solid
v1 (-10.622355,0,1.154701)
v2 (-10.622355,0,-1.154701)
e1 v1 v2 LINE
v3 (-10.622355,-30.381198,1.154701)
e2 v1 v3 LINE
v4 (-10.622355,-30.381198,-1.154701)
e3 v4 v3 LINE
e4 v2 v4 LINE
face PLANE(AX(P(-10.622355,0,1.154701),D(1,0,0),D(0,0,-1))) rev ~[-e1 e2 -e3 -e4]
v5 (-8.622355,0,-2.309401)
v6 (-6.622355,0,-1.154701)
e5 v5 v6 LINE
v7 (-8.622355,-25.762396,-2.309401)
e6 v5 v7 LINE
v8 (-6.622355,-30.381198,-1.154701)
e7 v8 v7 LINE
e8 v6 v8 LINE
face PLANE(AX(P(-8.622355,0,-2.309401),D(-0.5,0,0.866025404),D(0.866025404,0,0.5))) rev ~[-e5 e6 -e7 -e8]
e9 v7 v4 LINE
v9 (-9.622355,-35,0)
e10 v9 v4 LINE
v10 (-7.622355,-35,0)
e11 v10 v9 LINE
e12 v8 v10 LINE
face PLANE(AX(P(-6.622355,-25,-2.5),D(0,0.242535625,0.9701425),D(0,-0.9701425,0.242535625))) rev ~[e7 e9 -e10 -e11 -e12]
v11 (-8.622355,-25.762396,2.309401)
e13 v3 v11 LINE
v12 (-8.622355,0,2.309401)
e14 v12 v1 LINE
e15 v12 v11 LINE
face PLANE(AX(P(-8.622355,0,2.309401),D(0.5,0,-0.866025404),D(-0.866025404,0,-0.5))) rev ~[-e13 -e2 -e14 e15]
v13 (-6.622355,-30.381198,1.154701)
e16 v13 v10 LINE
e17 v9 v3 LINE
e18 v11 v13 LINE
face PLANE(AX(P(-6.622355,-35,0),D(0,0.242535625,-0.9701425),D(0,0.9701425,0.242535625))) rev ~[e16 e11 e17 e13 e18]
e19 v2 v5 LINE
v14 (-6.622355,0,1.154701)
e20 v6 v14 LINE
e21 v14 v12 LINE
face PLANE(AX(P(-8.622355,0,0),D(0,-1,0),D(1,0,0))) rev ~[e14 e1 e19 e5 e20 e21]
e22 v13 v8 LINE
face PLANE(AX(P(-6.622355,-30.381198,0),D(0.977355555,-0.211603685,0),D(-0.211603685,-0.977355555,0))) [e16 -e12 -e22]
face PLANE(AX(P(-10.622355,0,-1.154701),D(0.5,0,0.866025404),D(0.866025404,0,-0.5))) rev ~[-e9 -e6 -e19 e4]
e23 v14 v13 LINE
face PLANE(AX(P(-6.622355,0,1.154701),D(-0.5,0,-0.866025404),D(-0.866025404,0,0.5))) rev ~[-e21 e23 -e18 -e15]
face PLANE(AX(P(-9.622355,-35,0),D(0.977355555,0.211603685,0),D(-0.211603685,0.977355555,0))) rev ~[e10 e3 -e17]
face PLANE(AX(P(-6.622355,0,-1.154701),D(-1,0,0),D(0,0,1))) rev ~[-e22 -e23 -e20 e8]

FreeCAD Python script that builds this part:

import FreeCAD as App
import Part
import Sketcher
Q = App.Units.Quantity


def add_polygon(sketch, points):
    """Adds a closed chain of lines whose ends are joined by coincident constraints."""
    first, n = sketch.GeometryCount, len(points)
    for a, b in zip(points, points[1:] + points[:1]):
        sketch.addGeometry(Part.LineSegment(App.Vector(*a, 0), App.Vector(*b, 0)), False)
    for i in range(n):
        sketch.addConstraint(Sketcher.Constraint("Coincident", first + i, 2, first + (i + 1) % n, 1))

doc = App.newDocument("Part")
body = doc.addObject("PartDesign::Body", "Body")

# Sketch on XZ plane
sketch1 = body.newObject("Sketcher::SketchObject", "Sketch")
sketch1.AttachmentSupport = (doc.getObject("XZ_Plane"), [""])
sketch1.MapMode = "FlatFace"
add_polygon(sketch1, [(-6.622355, -1.154701), (-6.622355, 1.154701), (-8.622355, 2.309401), (-10.622355, 1.154701), (-10.622355, -1.154701), (-8.622355, -2.309401)])  # lines 0-5
sketch1.addConstraint(Sketcher.Constraint("Vertical", 0))
sketch1.addConstraint(Sketcher.Constraint("Vertical", 3))
sketch1.addConstraint(Sketcher.Constraint("Symmetric", 1, 2, 4, 2, -1))
sketch1.addConstraint(Sketcher.Constraint("Parallel", 1, 4))
sketch1.addConstraint(Sketcher.Constraint("Parallel", 2, 5))
sketch1.addConstraint(Sketcher.Constraint("Horizontal", 0, 2, 2, 2))
sketch1.addConstraint(Sketcher.Constraint("Horizontal", 3, 2, 5, 2))
sketch1.addConstraint(Sketcher.Constraint("Angle", 1, Q("150 deg")))
sketch1.addConstraint(Sketcher.Constraint("DistanceX", 1, 2, 0, 2, Q("2 mm")))
sketch1.addConstraint(Sketcher.Constraint("DistanceY", 0, 1, 0, 2, Q("2.309401 mm")))
sketch1.addConstraint(Sketcher.Constraint("DistanceX", 0, 2, -1, 1, Q("6.622355 mm")))
pad1 = body.newObject("PartDesign::Pad", "Pad")
pad1.Profile = sketch1
pad1.Length = 35

# Sketch on YZ plane
sketch2 = body.newObject("Sketcher::SketchObject", "Sketch001")
sketch2.AttachmentSupport = (doc.getObject("YZ_Plane"), [""])
sketch2.MapMode = "FlatFace"
sketch2.AttachmentOffset = App.Placement(App.Vector(0, 0, -6.622355), App.Rotation())
add_polygon(sketch2, [(-35, 2.5), (-35, 0), (-25, 2.5)])  # lines 0-2
add_polygon(sketch2, [(-25, -2.5), (-35, 0), (-35, -2.5)])  # lines 3-5
sketch2.addConstraint(Sketcher.Constraint("Vertical", 0))
sketch2.addConstraint(Sketcher.Constraint("Horizontal", 2))
sketch2.addConstraint(Sketcher.Constraint("Vertical", 4))
sketch2.addConstraint(Sketcher.Constraint("Horizontal", 5))
sketch2.addConstraint(Sketcher.Constraint("Coincident", 3, 2, 0, 2))
sketch2.addConstraint(Sketcher.Constraint("Symmetric", 1, 2, 5, 2, -1))
sketch2.addConstraint(Sketcher.Constraint("PointOnObject", 0, 2, -1))
sketch2.addConstraint(Sketcher.Constraint("DistanceX", 2, 2, 2, 1, Q("10 mm")))
sketch2.addConstraint(Sketcher.Constraint("DistanceY", 0, 2, 0, 1, Q("2.5 mm")))
sketch2.addConstraint(Sketcher.Constraint("DistanceX", 0, 2, -1, 1, Q("35 mm")))
pocket1 = body.newObject("PartDesign::Pocket", "Pocket")
pocket1.Profile = sketch2
pocket1.Type = "ThroughAll"

# Sketch on XY plane
sketch3 = body.newObject("Sketcher::SketchObject", "Sketch002")
sketch3.AttachmentSupport = (doc.getObject("XY_Plane"), [""])
sketch3.MapMode = "FlatFace"
add_polygon(sketch3, [(-6.622355, -35), (-6.622355, -30.381198), (-7.622355, -35)])  # lines 0-2
add_polygon(sketch3, [(-10.622355, -35), (-9.622355, -35), (-10.622355, -30.381198)])  # lines 3-5
sketch3.addConstraint(Sketcher.Constraint("Vertical", 0))
sketch3.addConstraint(Sketcher.Constraint("Horizontal", 2))
sketch3.addConstraint(Sketcher.Constraint("Horizontal", 3))
sketch3.addConstraint(Sketcher.Constraint("Vertical", 5))
sketch3.addConstraint(Sketcher.Constraint("Horizontal", 2, 2, 3, 2))
sketch3.addConstraint(Sketcher.Constraint("Horizontal", 0, 2, 4, 2))
sketch3.addConstraint(Sketcher.Constraint("Equal", 2, 3))
sketch3.addConstraint(Sketcher.Constraint("DistanceX", 2, 1, 2, 2, Q("1 mm")))
sketch3.addConstraint(Sketcher.Constraint("DistanceY", 1, 2, -1, 1, Q("35 mm")))
sketch3.addConstraint(Sketcher.Constraint("DistanceX", 3, 2, 1, 2, Q("2 mm")))
sketch3.addConstraint(Sketcher.Constraint("DistanceY", 0, 1, 0, 2, Q("4.618802 mm")))
sketch3.addConstraint(Sketcher.Constraint("DistanceX", 0, 2, -1, 1, Q("6.622355 mm")))
pocket2 = body.newObject("PartDesign::Pocket", "Pocket001")
pocket2.Profile = sketch3
pocket2.Type = "ThroughAll"
pocket2.Midplane = True

doc.recompute()
